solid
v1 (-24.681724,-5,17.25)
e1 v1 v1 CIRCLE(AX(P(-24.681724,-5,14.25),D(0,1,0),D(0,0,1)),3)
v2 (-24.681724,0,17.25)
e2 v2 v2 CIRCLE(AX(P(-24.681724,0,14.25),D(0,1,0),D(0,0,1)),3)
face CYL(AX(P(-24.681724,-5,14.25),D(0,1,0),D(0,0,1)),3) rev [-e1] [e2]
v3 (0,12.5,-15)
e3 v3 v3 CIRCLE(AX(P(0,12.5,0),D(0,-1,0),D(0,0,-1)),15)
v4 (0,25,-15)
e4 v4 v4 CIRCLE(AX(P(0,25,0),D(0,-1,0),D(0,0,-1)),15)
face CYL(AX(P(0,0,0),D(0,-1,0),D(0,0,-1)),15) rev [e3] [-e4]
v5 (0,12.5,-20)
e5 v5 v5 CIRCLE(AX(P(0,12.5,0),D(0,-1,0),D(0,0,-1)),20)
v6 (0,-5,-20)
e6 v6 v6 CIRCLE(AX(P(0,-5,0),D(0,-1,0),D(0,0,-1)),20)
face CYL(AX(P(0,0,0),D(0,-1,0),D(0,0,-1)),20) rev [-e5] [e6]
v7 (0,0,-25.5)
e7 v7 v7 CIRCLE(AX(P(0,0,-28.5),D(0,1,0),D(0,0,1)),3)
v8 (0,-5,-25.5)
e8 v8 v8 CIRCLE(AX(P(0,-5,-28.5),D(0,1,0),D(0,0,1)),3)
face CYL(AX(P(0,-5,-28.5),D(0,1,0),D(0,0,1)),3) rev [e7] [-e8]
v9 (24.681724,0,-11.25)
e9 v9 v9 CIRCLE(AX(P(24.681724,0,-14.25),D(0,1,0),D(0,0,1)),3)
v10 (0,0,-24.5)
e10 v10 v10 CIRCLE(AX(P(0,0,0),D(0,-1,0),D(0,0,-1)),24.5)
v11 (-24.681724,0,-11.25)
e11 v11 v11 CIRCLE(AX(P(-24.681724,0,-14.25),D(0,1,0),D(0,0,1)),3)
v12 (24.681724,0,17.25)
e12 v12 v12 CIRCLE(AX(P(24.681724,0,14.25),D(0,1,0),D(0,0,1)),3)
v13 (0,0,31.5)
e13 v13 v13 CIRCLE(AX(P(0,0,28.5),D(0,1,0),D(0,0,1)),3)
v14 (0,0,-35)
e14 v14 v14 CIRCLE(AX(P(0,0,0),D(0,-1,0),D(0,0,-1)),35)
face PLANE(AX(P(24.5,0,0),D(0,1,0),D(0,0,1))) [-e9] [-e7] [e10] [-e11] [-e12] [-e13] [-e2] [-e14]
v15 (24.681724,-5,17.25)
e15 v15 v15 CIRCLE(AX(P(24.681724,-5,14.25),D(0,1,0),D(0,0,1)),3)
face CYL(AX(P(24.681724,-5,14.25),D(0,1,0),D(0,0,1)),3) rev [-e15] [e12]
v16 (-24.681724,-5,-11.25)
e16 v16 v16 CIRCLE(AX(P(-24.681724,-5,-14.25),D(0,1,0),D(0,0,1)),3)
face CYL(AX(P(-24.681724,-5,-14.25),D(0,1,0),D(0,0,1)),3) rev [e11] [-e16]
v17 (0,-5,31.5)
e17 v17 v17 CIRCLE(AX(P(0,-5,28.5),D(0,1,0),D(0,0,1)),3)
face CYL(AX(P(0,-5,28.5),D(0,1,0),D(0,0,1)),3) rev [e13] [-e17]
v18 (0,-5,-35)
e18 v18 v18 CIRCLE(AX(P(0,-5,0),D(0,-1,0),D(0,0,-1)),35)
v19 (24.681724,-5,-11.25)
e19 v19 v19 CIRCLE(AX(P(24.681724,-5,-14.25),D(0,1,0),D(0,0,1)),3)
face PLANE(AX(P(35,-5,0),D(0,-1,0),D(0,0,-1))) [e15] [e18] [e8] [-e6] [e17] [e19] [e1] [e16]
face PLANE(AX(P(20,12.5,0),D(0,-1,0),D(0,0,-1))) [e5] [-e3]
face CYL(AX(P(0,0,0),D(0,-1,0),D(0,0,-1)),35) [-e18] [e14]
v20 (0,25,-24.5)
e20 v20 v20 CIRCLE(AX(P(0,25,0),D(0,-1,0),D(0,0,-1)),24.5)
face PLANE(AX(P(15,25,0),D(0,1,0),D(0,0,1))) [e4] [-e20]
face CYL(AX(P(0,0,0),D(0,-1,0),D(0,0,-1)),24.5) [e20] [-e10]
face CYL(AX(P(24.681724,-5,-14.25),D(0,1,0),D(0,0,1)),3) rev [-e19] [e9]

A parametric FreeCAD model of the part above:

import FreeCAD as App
import Part
import Sketcher

V = App.Vector
Q = App.Units.Quantity


def add_polygon(sketch, points):
    """Adds a closed chain of lines whose ends are joined by coincident constraints."""
    first, n = sketch.GeometryCount, len(points)
    for a, b in zip(points, points[1:] + points[:1]):
        sketch.addGeometry(Part.LineSegment(App.Vector(*a, 0), App.Vector(*b, 0)), False)
    for i in range(n):
        sketch.addConstraint(Sketcher.Constraint("Coincident", first + i, 2, first + (i + 1) % n, 1))

doc = App.newDocument("Part")
params = doc.addObject("Spreadsheet::Sheet", "Params")
for row, (alias, value) in enumerate([
    ("sketch1_width", "5 mm"),
    ("sketch1_width2", "15 mm"),
    ("sketch1_height", "25 mm"),
    ("sketch1_width3", "10.5 mm"),
    ("sketch1_height2", "12.5 mm"),
    ("revolution_angle", "360 deg"),
    ("sketch2_diameter", "6 mm"),
], start=1):
    params.set(f"A{row}", alias)
    params.set(f"B{row}", "=" + value)
    params.setAlias(f"B{row}", alias)

body = doc.addObject("PartDesign::Body", "Body")

# Sketch on XY plane
sketch1 = body.newObject("Sketcher::SketchObject", "Sketch")
sketch1.AttachmentSupport = (doc.getObject("XY_Plane"), [""])
sketch1.MapMode = "FlatFace"
add_polygon(sketch1, [(35, 0), (24.5, 0), (24.5, 25), (15, 25), (15, 12.5), (20, 12.5), (20, -5), (35, -5)])  # lines 0-7
sketch1.addConstraint([
    Sketcher.Constraint("Horizontal", 0),
    Sketcher.Constraint("Vertical", 1),
    Sketcher.Constraint("Horizontal", 2),
    Sketcher.Constraint("Vertical", 3),
    Sketcher.Constraint("Horizontal", 4),
    Sketcher.Constraint("Vertical", 5),
    Sketcher.Constraint("Horizontal", 6),
    Sketcher.Constraint("Vertical", 7),
    Sketcher.Constraint("PointOnObject", 0, 2, -1),
    Sketcher.Constraint("Equal", 4, 7),
    Sketcher.Constraint("DistanceX", 4, 1, 4, 2, Q("5 mm")),
    Sketcher.Constraint("DistanceX", 6, 1, 6, 2, Q("15 mm")),
    Sketcher.Constraint("DistanceY", 1, 1, 1, 2, Q("25 mm")),
    Sketcher.Constraint("DistanceX", 0, 2, 0, 1, Q("10.5 mm")),
    Sketcher.Constraint("DistanceY", 3, 2, 3, 1, Q("12.5 mm")),
    Sketcher.Constraint("DistanceX", -1, 1, 2, 2, Q("15 mm")),
])
sketch1.setExpression("Constraints[18]", "Params.sketch1_width")
sketch1.setExpression("Constraints[19]", "Params.sketch1_width2")
sketch1.setExpression("Constraints[20]", "Params.sketch1_height")
sketch1.setExpression("Constraints[21]", "Params.sketch1_width3")
sketch1.setExpression("Constraints[22]", "Params.sketch1_height2")
revolution = body.newObject("PartDesign::Revolution", "Revolution")
revolution.Profile = sketch1
revolution.ReferenceAxis = (sketch1, ["V_Axis"])
revolution.setExpression("Angle", "Params.revolution_angle")

# Sketch on XZ plane
sketch2 = body.newObject("Sketcher::SketchObject", "Sketch001")
sketch2.AttachmentSupport = (doc.getObject("XZ_Plane"), [""])
sketch2.MapMode = "FlatFace"
sketch2.AttachmentOffset = App.Placement(V(0, 0, -25), App.Rotation())
sketch2.addGeometry([
    Part.Circle(V(0, -28.5, 0), V(0, 0, 1), 3),  # 0
    Part.Circle(V(24.681724, -14.25, 0), V(0, 0, 1), 3),  # 1
    Part.Circle(V(24.681724, 14.25, 0), V(0, 0, 1), 3),  # 2
    Part.Circle(V(0, 28.5, 0), V(0, 0, 1), 3),  # 3
    Part.Circle(V(-24.681724, 14.25, 0), V(0, 0, 1), 3),  # 4
    Part.Circle(V(-24.681724, -14.25, 0), V(0, 0, 1), 3),  # 5
], False)
sketch2.addConstraint([
    Sketcher.Constraint("Equal", 0, 1),
    Sketcher.Constraint("Equal", 1, 2),
    Sketcher.Constraint("Equal", 2, 3),
    Sketcher.Constraint("Equal", 3, 4),
    Sketcher.Constraint("Equal", 4, 5),
    Sketcher.Constraint("Symmetric", 0, 3, 3, 3, -1, 1),
    Sketcher.Constraint("Symmetric", 1, 3, 4, 3, -1, 1),
    Sketcher.Constraint("Symmetric", 2, 3, 5, 3, -1, 1),
    Sketcher.Constraint("Symmetric", 2, 3, 4, 3, -2),
    Sketcher.Constraint("PointOnObject", 0, 3, -2),
    Sketcher.Constraint("Diameter", 0, Q("6 mm")),
    Sketcher.Constraint("DistanceY", 0, 3, 3, 3, Q("57 mm")),
    Sketcher.Constraint("DistanceY", 1, 3, 2, 3, Q("28.5 mm")),
    Sketcher.Constraint("DistanceX", 4, 3, 2, 3, Q("49.363448 mm")),
])
sketch2.setExpression("Constraints[10]", "Params.sketch2_diameter")
pocket1 = body.newObject("PartDesign::Pocket", "Pocket")
pocket1.Profile = sketch2
pocket1.Type = "ThroughAll"
pocket1.Reversed = True

doc.recompute()
